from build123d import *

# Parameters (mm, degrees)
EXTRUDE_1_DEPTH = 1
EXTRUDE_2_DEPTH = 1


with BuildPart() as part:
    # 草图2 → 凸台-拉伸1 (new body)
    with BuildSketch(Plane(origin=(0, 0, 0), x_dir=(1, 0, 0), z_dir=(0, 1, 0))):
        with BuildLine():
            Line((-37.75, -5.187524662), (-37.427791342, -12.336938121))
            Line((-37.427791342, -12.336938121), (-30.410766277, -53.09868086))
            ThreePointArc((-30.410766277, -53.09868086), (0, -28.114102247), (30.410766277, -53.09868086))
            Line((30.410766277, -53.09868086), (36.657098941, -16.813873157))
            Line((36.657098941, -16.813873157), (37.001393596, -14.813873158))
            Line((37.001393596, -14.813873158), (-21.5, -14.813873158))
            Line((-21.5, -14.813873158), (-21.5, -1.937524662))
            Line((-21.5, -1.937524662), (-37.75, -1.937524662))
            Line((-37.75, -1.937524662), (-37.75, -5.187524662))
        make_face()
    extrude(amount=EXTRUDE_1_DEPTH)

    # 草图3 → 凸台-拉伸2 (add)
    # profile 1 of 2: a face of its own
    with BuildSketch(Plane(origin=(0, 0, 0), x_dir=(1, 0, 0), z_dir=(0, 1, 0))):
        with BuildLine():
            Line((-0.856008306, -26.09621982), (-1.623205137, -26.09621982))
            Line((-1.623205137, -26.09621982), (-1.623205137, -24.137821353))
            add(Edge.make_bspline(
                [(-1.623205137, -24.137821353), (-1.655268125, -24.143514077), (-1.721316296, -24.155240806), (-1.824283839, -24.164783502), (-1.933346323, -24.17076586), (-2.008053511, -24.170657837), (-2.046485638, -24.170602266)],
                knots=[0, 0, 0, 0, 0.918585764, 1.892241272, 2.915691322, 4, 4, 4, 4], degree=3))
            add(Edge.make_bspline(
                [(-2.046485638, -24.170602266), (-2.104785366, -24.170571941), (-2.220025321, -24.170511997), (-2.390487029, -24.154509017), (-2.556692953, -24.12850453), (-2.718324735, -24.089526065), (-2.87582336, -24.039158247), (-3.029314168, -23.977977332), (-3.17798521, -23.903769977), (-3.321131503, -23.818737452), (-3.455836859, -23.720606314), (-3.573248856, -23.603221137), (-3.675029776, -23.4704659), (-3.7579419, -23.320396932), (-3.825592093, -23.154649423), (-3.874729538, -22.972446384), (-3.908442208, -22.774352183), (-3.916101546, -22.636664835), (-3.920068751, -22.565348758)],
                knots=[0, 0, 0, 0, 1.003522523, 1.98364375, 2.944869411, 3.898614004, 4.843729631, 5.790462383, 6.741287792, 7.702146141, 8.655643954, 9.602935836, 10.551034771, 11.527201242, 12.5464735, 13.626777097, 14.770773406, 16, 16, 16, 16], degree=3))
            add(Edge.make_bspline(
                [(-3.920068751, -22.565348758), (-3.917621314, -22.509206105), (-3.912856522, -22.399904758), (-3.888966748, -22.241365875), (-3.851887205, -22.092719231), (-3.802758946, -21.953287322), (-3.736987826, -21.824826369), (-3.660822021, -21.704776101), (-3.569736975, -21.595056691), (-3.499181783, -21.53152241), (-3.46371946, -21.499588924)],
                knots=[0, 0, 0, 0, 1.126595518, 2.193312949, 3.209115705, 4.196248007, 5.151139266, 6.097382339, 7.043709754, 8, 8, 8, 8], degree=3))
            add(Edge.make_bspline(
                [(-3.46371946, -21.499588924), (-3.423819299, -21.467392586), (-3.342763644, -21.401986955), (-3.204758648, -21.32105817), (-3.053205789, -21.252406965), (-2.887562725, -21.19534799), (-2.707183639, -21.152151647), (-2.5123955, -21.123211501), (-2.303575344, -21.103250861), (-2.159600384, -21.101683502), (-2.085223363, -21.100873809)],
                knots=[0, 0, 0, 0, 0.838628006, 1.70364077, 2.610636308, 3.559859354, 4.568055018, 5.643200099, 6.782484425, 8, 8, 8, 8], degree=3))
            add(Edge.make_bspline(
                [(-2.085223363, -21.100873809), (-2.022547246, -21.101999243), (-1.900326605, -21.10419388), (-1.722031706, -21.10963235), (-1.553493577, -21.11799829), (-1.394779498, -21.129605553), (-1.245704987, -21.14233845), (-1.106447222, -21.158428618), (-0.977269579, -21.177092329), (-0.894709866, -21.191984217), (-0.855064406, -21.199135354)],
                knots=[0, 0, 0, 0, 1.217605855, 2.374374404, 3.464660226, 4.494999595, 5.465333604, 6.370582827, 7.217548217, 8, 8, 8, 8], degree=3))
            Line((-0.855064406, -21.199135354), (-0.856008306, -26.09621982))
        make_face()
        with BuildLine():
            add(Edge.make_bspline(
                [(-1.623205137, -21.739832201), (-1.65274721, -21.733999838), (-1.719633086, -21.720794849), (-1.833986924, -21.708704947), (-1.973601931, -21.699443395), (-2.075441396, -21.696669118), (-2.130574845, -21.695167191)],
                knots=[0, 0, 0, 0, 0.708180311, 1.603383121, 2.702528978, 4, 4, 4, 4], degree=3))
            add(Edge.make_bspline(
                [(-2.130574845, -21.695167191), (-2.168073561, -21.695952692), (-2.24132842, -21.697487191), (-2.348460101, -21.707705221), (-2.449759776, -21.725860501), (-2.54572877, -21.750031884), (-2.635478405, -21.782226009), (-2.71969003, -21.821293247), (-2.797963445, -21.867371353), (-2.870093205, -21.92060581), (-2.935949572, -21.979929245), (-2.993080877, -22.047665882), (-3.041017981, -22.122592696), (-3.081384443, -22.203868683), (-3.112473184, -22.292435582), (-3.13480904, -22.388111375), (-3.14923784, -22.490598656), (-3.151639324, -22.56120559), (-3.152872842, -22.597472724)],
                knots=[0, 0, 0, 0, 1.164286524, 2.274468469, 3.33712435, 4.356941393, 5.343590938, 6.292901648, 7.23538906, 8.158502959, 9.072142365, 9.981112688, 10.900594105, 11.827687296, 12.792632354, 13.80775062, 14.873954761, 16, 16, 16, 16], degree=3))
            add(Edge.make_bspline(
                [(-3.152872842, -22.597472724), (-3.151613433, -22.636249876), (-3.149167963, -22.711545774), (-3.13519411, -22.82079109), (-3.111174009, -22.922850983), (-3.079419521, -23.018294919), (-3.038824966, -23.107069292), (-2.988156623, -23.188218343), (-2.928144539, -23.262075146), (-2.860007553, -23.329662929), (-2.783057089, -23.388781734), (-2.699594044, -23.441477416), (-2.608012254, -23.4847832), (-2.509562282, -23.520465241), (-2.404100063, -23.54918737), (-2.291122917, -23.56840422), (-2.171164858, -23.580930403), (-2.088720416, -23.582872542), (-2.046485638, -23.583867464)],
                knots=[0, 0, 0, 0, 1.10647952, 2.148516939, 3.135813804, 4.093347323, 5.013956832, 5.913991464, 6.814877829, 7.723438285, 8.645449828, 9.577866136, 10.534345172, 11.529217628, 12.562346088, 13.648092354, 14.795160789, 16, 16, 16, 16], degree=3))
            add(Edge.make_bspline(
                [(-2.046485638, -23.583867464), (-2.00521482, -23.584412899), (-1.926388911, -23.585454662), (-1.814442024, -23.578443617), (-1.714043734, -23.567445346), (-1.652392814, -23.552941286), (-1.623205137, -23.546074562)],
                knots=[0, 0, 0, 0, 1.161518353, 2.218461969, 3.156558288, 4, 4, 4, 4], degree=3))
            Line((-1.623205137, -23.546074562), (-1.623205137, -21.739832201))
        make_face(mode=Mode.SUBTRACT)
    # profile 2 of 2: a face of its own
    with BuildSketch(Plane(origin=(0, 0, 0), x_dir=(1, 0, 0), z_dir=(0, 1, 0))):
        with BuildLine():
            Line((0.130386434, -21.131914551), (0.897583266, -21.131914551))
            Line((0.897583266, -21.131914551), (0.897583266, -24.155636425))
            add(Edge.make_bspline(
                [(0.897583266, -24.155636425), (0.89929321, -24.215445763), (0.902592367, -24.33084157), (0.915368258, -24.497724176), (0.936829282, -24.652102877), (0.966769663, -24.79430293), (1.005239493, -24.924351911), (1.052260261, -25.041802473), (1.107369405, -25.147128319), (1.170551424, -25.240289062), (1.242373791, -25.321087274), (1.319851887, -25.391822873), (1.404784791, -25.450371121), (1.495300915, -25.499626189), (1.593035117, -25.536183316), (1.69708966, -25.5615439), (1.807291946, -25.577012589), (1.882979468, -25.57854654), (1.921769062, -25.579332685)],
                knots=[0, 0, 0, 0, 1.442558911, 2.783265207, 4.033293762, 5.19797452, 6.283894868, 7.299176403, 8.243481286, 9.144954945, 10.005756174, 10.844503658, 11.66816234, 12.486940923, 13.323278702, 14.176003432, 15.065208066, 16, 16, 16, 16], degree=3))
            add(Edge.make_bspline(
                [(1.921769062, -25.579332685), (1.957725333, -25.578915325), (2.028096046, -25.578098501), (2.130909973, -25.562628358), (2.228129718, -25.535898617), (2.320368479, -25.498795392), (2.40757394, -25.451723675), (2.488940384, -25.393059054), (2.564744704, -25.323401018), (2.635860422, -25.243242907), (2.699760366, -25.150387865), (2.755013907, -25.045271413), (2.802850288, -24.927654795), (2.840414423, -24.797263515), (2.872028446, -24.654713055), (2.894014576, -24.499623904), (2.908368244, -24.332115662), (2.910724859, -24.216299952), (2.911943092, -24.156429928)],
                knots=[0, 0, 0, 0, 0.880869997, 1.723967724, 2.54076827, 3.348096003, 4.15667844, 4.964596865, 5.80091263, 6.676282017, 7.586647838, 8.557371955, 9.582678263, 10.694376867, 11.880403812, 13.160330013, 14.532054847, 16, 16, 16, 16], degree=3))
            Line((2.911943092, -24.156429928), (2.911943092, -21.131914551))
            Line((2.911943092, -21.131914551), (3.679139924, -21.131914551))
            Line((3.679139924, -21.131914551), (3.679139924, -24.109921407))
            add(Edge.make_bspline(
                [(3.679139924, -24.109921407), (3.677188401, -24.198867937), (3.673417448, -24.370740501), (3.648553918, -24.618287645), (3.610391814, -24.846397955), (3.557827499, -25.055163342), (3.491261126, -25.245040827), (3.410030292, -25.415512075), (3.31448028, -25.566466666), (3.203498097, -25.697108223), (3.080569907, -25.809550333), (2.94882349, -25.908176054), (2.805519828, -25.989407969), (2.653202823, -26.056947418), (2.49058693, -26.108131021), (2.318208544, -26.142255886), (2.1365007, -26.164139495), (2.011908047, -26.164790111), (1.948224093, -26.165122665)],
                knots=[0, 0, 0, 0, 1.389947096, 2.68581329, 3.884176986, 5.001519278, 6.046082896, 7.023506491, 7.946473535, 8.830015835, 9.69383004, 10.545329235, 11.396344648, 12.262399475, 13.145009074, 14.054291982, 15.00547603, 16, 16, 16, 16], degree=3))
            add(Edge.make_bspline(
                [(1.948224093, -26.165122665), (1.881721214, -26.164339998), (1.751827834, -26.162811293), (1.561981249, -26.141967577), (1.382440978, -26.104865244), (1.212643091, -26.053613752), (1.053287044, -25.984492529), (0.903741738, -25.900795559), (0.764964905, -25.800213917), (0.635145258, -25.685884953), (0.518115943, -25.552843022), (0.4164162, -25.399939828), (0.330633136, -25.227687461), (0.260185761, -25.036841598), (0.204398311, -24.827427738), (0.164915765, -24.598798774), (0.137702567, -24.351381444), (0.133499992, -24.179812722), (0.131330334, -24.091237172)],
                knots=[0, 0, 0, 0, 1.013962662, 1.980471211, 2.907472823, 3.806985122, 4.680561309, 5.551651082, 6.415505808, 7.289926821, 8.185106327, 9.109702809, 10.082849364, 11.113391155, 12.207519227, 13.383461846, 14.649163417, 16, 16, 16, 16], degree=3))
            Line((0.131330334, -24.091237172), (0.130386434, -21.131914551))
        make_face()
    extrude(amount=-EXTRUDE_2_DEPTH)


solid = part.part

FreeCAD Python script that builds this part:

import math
import FreeCAD as App
import Part
import Sketcher

V = App.Vector

doc = App.newDocument("Part")
body = doc.addObject("PartDesign::Body", "Body")

# Sketch on XZ plane
sketch1 = doc.addObject("Sketcher::SketchObject", "Sketch")
body.addObject(sketch1)
sketch1.AttachmentSupport = (doc.XZ_Plane, [""])
sketch1.MapMode = "FlatFace"
sketch1.addGeometry([
    Part.LineSegment(V(-37.75, 5.187525, 0), V(-37.427791, 12.336938, 0)),  # 0
    Part.LineSegment(V(-37.427791, 12.336938, 0), V(-30.410766, 53.098681, 0)),  # 1
    Part.ArcOfCircle(Part.Circle(V(0, 59.114102, 0), V(0, 0, 1), 31), math.radians(-168.81101), math.radians(-11.18899)),  # 2
    Part.LineSegment(V(30.410766, 53.098681, 0), V(36.657099, 16.813873, 0)),  # 3
    Part.LineSegment(V(36.657099, 16.813873, 0), V(37.001394, 14.813873, 0)),  # 4
    Part.LineSegment(V(37.001394, 14.813873, 0), V(-21.5, 14.813873, 0)),  # 5
    Part.LineSegment(V(-21.5, 14.813873, 0), V(-21.5, 1.937525, 0)),  # 6
    Part.LineSegment(V(-21.5, 1.937525, 0), V(-37.75, 1.937525, 0)),  # 7
    Part.LineSegment(V(-37.75, 1.937525, 0), V(-37.75, 5.187525, 0)),  # 8
], False)
sketch1.addConstraint([
    Sketcher.Constraint("Coincident", 0, 2, 1, 1),
    Sketcher.Constraint("Coincident", 1, 2, 2, 1),
    Sketcher.Constraint("Coincident", 2, 2, 3, 1),
    Sketcher.Constraint("Coincident", 3, 2, 4, 1),
    Sketcher.Constraint("Coincident", 4, 2, 5, 1),
    Sketcher.Constraint("Coincident", 5, 2, 6, 1),
    Sketcher.Constraint("Coincident", 6, 2, 7, 1),
    Sketcher.Constraint("Coincident", 7, 2, 8, 1),
    Sketcher.Constraint("Coincident", 8, 2, 0, 1),
    Sketcher.Constraint("Horizontal", 5),
    Sketcher.Constraint("Vertical", 6),
    Sketcher.Constraint("Horizontal", 7),
    Sketcher.Constraint("Vertical", 8),
    Sketcher.Constraint("PointOnObject", 2, 3, -2),
    Sketcher.Constraint("Radius", 2, 31.0),
    Sketcher.Constraint("DistanceY", 4, 2, 3, 2, 2.0),
    Sketcher.Constraint("DistanceX", 7, 2, 7, 1, 16.25),
    Sketcher.Constraint("DistanceY", 8, 1, 8, 2, 3.25),
    Sketcher.Constraint("DistanceX", 5, 2, -1, 1, 21.5),
    Sketcher.Constraint("DistanceY", 6, 2, 6, 1, 12.876348),
    Sketcher.Constraint("DistanceX", -1, 1, 3, 2, 36.657099),
    Sketcher.Constraint("Distance", 0, 7.15667),
    Sketcher.Constraint("Distance", 4, 2.029418),
    Sketcher.Constraint("DistanceX", 0, 2, -1, 1, 37.427791),
    Sketcher.Constraint("DistanceY", -1, 1, 0, 2, 12.336938),
    Sketcher.Constraint("DistanceY", -1, 1, 1, 2, 53.098681),
    Sketcher.Constraint("DistanceY", -1, 1, 2, 2, 53.098681),
    Sketcher.Constraint("DistanceY", 1, 2, 2, 3, 6.015421),
])
pad1 = doc.addObject("PartDesign::Pad", "Pad")
body.addObject(pad1)
pad1.Profile = sketch1
pad1.Length = 1
pad1.Reversed = True

# Sketch on XZ plane
sketch2 = doc.addObject("Sketcher::SketchObject", "Sketch001")
body.addObject(sketch2)
sketch2.AttachmentSupport = (doc.XZ_Plane, [""])
sketch2.MapMode = "FlatFace"
sketch2.addGeometry([
    Part.LineSegment(V(-1.623205, 26.09622, 0), V(-0.856008, 26.09622, 0)),  # 0
    Part.LineSegment(V(-0.856008, 26.09622, 0), V(-0.855064, 21.199135, 0)),  # 1
    Part.BSplineCurve([V(-2.085223, 21.100874, 0), V(-2.022547, 21.101999, 0), V(-1.900327, 21.104194, 0), V(-1.722032, 21.109632, 0), V(-1.553494, 21.117998, 0), V(-1.394779, 21.129606, 0), V(-1.245705, 21.142338, 0), V(-1.106447, 21.158429, 0), V(-0.97727, 21.177092, 0), V(-0.89471, 21.191984, 0), V(-0.855064, 21.199135, 0)], [4, 1, 1, 1, 1, 1, 1, 1, 4], [0, 1.217605855, 2.374374404, 3.464660226, 4.494999595, 5.465333604, 6.370582827, 7.217548217, 8], False, 3, [1, 1, 1, 1, 1, 1, 1, 1, 1, 1, 1], False),  # 2
    Part.BSplineCurve([V(-3.463719, 21.499589, 0), V(-3.423819, 21.467393, 0), V(-3.342764, 21.401987, 0), V(-3.204759, 21.321058, 0), V(-3.053206, 21.252407, 0), V(-2.887563, 21.195348, 0), V(-2.707184, 21.152152, 0), V(-2.512395, 21.123212, 0), V(-2.303575, 21.103251, 0), V(-2.1596, 21.101684, 0), V(-2.085223, 21.100874, 0)], [4, 1, 1, 1, 1, 1, 1, 1, 4], [0, 0.838628006, 1.70364077, 2.610636308, 3.559859354, 4.568055018, 5.643200099, 6.782484425, 8], False, 3, [1, 1, 1, 1, 1, 1, 1, 1, 1, 1, 1], False),  # 3
    Part.BSplineCurve([V(-3.920069, 22.565349, 0), V(-3.917621, 22.509206, 0), V(-3.912857, 22.399905, 0), V(-3.888967, 22.241366, 0), V(-3.851887, 22.092719, 0), V(-3.802759, 21.953287, 0), V(-3.736988, 21.824826, 0), V(-3.660822, 21.704776, 0), V(-3.569737, 21.595057, 0), V(-3.499182, 21.531522, 0), V(-3.463719, 21.499589, 0)], [4, 1, 1, 1, 1, 1, 1, 1, 4], [0, 1.126595518, 2.193312949, 3.209115705, 4.196248007, 5.151139266, 6.097382339, 7.043709754, 8], False, 3, [1, 1, 1, 1, 1, 1, 1, 1, 1, 1, 1], False),  # 4
    Part.BSplineCurve([V(-2.046486, 24.170602, 0), V(-2.104785, 24.170572, 0), V(-2.220025, 24.170512, 0), V(-2.390487, 24.154509, 0), V(-2.556693, 24.128505, 0), V(-2.718325, 24.089526, 0), V(-2.875823, 24.039158, 0), V(-3.029314, 23.977977, 0), V(-3.177985, 23.90377, 0), V(-3.321132, 23.818737, 0), V(-3.455837, 23.720606, 0), V(-3.573249, 23.603221, 0), V(-3.67503, 23.470466, 0), V(-3.757942, 23.320397, 0), V(-3.825592, 23.154649, 0), V(-3.87473, 22.972446, 0), V(-3.908442, 22.774352, 0), V(-3.916102, 22.636665, 0), V(-3.920069, 22.565349, 0)], [4, 1, 1, 1, 1, 1, 1, 1, 1, 1, 1, 1, 1, 1, 1, 1, 4], [0, 1.003522523, 1.98364375, 2.944869411, 3.898614004, 4.843729631, 5.790462383, 6.741287792, 7.702146141, 8.655643954, 9.602935836, 10.551034771, 11.527201242, 12.5464735, 13.626777097, 14.770773406, 16], False, 3, [1, 1, 1, 1, 1, 1, 1, 1, 1, 1, 1, 1, 1, 1, 1, 1, 1, 1, 1], False),  # 5
    Part.BSplineCurve([V(-1.623205, 24.137821, 0), V(-1.655268, 24.143514, 0), V(-1.721316, 24.155241, 0), V(-1.824284, 24.164784, 0), V(-1.933346, 24.170766, 0), V(-2.008054, 24.170658, 0), V(-2.046486, 24.170602, 0)], [4, 1, 1, 1, 4], [0, 0.918585764, 1.892241272, 2.915691322, 4], False, 3, [1, 1, 1, 1, 1, 1, 1], False),  # 6
    Part.LineSegment(V(-1.623205, 24.137821, 0), V(-1.623205, 26.09622, 0)),  # 7
    Part.LineSegment(V(-1.623205, 21.739832, 0), V(-1.623205, 23.546075, 0)),  # 8
    Part.BSplineCurve([V(-2.046486, 23.583867, 0), V(-2.005215, 23.584413, 0), V(-1.926389, 23.585455, 0), V(-1.814442, 23.578444, 0), V(-1.714044, 23.567445, 0), V(-1.652393, 23.552941, 0), V(-1.623205, 23.546075, 0)], [4, 1, 1, 1, 4], [0, 1.161518353, 2.218461969, 3.156558288, 4], False, 3, [1, 1, 1, 1, 1, 1, 1], False),  # 9
    Part.BSplineCurve([V(-3.152873, 22.597473, 0), V(-3.151613, 22.63625, 0), V(-3.149168, 22.711546, 0), V(-3.135194, 22.820791, 0), V(-3.111174, 22.922851, 0), V(-3.07942, 23.018295, 0), V(-3.038825, 23.107069, 0), V(-2.988157, 23.188218, 0), V(-2.928145, 23.262075, 0), V(-2.860008, 23.329663, 0), V(-2.783057, 23.388782, 0), V(-2.699594, 23.441477, 0), V(-2.608012, 23.484783, 0), V(-2.509562, 23.520465, 0), V(-2.4041, 23.549187, 0), V(-2.291123, 23.568404, 0), V(-2.171165, 23.58093, 0), V(-2.08872, 23.582873, 0), V(-2.046486, 23.583867, 0)], [4, 1, 1, 1, 1, 1, 1, 1, 1, 1, 1, 1, 1, 1, 1, 1, 4], [0, 1.10647952, 2.148516939, 3.135813804, 4.093347323, 5.013956832, 5.913991464, 6.814877829, 7.723438285, 8.645449828, 9.577866136, 10.534345172, 11.529217628, 12.562346088, 13.648092354, 14.795160789, 16], False, 3, [1, 1, 1, 1, 1, 1, 1, 1, 1, 1, 1, 1, 1, 1, 1, 1, 1, 1, 1], False),  # 10
    Part.BSplineCurve([V(-2.130575, 21.695167, 0), V(-2.168074, 21.695953, 0), V(-2.241328, 21.697487, 0), V(-2.34846, 21.707705, 0), V(-2.44976, 21.725861, 0), V(-2.545729, 21.750032, 0), V(-2.635478, 21.782226, 0), V(-2.71969, 21.821293, 0), V(-2.797963, 21.867371, 0), V(-2.870093, 21.920606, 0), V(-2.93595, 21.979929, 0), V(-2.993081, 22.047666, 0), V(-3.041018, 22.122593, 0), V(-3.081384, 22.203869, 0), V(-3.112473, 22.292436, 0), V(-3.134809, 22.388111, 0), V(-3.149238, 22.490599, 0), V(-3.151639, 22.561206, 0), V(-3.152873, 22.597473, 0)], [4, 1, 1, 1, 1, 1, 1, 1, 1, 1, 1, 1, 1, 1, 1, 1, 4], [0, 1.164286524, 2.274468469, 3.33712435, 4.356941393, 5.343590938, 6.292901648, 7.23538906, 8.158502959, 9.072142365, 9.981112688, 10.900594105, 11.827687296, 12.792632354, 13.80775062, 14.873954761, 16], False, 3, [1, 1, 1, 1, 1, 1, 1, 1, 1, 1, 1, 1, 1, 1, 1, 1, 1, 1, 1], False),  # 11
    Part.BSplineCurve([V(-1.623205, 21.739832, 0), V(-1.652747, 21.734, 0), V(-1.719633, 21.720795, 0), V(-1.833987, 21.708705, 0), V(-1.973602, 21.699443, 0), V(-2.075441, 21.696669, 0), V(-2.130575, 21.695167, 0)], [4, 1, 1, 1, 4], [0, 0.708180311, 1.603383121, 2.702528978, 4], False, 3, [1, 1, 1, 1, 1, 1, 1], False),  # 12
    Part.LineSegment(V(0.897583, 21.131915, 0), V(0.130386, 21.131915, 0)),  # 13
    Part.LineSegment(V(0.130386, 21.131915, 0), V(0.13133, 24.091237, 0)),  # 14
    Part.BSplineCurve([V(1.948224, 26.165123, 0), V(1.881721, 26.16434, 0), V(1.751828, 26.162811, 0), V(1.561981, 26.141968, 0), V(1.382441, 26.104865, 0), V(1.212643, 26.053614, 0), V(1.053287, 25.984493, 0), V(0.903742, 25.900796, 0), V(0.764965, 25.800214, 0), V(0.635145, 25.685885, 0), V(0.518116, 25.552843, 0), V(0.416416, 25.39994, 0), V(0.330633, 25.227687, 0), V(0.260186, 25.036842, 0), V(0.204398, 24.827428, 0), V(0.164916, 24.598799, 0), V(0.137703, 24.351381, 0), V(0.1335, 24.179813, 0), V(0.13133, 24.091237, 0)], [4, 1, 1, 1, 1, 1, 1, 1, 1, 1, 1, 1, 1, 1, 1, 1, 4], [0, 1.013962662, 1.980471211, 2.907472823, 3.806985122, 4.680561309, 5.551651082, 6.415505808, 7.289926821, 8.185106327, 9.109702809, 10.082849364, 11.113391155, 12.207519227, 13.383461846, 14.649163417, 16], False, 3, [1, 1, 1, 1, 1, 1, 1, 1, 1, 1, 1, 1, 1, 1, 1, 1, 1, 1, 1], False),  # 15
    Part.BSplineCurve([V(3.67914, 24.109921, 0), V(3.677188, 24.198868, 0), V(3.673417, 24.370741, 0), V(3.648554, 24.618288, 0), V(3.610392, 24.846398, 0), V(3.557827, 25.055163, 0), V(3.491261, 25.245041, 0), V(3.41003, 25.415512, 0), V(3.31448, 25.566467, 0), V(3.203498, 25.697108, 0), V(3.08057, 25.80955, 0), V(2.948823, 25.908176, 0), V(2.80552, 25.989408, 0), V(2.653203, 26.056947, 0), V(2.490587, 26.108131, 0), V(2.318209, 26.142256, 0), V(2.136501, 26.164139, 0), V(2.011908, 26.16479, 0), V(1.948224, 26.165123, 0)], [4, 1, 1, 1, 1, 1, 1, 1, 1, 1, 1, 1, 1, 1, 1, 1, 4], [0, 1.389947096, 2.68581329, 3.884176986, 5.001519278, 6.046082896, 7.023506491, 7.946473535, 8.830015835, 9.69383004, 10.545329235, 11.396344648, 12.262399475, 13.145009074, 14.054291982, 15.00547603, 16], False, 3, [1, 1, 1, 1, 1, 1, 1, 1, 1, 1, 1, 1, 1, 1, 1, 1, 1, 1, 1], False),  # 16
    Part.LineSegment(V(3.67914, 24.109921, 0), V(3.67914, 21.131915, 0)),  # 17
    Part.LineSegment(V(3.67914, 21.131915, 0), V(2.911943, 21.131915, 0)),  # 18
    Part.LineSegment(V(2.911943, 21.131915, 0), V(2.911943, 24.15643, 0)),  # 19
    Part.BSplineCurve([V(1.921769, 25.579333, 0), V(1.957725, 25.578915, 0), V(2.028096, 25.578099, 0), V(2.13091, 25.562628, 0), V(2.22813, 25.535899, 0), V(2.320368, 25.498795, 0), V(2.407574, 25.451724, 0), V(2.48894, 25.393059, 0), V(2.564745, 25.323401, 0), V(2.63586, 25.243243, 0), V(2.69976, 25.150388, 0), V(2.755014, 25.045271, 0), V(2.80285, 24.927655, 0), V(2.840414, 24.797264, 0), V(2.872028, 24.654713, 0), V(2.894015, 24.499624, 0), V(2.908368, 24.332116, 0), V(2.910725, 24.2163, 0), V(2.911943, 24.15643, 0)], [4, 1, 1, 1, 1, 1, 1, 1, 1, 1, 1, 1, 1, 1, 1, 1, 4], [0, 0.880869997, 1.723967724, 2.54076827, 3.348096003, 4.15667844, 4.964596865, 5.80091263, 6.676282017, 7.586647838, 8.557371955, 9.582678263, 10.694376867, 11.880403812, 13.160330013, 14.532054847, 16], False, 3, [1, 1, 1, 1, 1, 1, 1, 1, 1, 1, 1, 1, 1, 1, 1, 1, 1, 1, 1], False),  # 20
    Part.BSplineCurve([V(0.897583, 24.155636, 0), V(0.899293, 24.215446, 0), V(0.902592, 24.330842, 0), V(0.915368, 24.497724, 0), V(0.936829, 24.652103, 0), V(0.96677, 24.794303, 0), V(1.005239, 24.924352, 0), V(1.05226, 25.041802, 0), V(1.107369, 25.147128, 0), V(1.170551, 25.240289, 0), V(1.242374, 25.321087, 0), V(1.319852, 25.391823, 0), V(1.404785, 25.450371, 0), V(1.495301, 25.499626, 0), V(1.593035, 25.536183, 0), V(1.69709, 25.561544, 0), V(1.807292, 25.577013, 0), V(1.882979, 25.578547, 0), V(1.921769, 25.579333, 0)], [4, 1, 1, 1, 1, 1, 1, 1, 1, 1, 1, 1, 1, 1, 1, 1, 4], [0, 1.442558911, 2.783265207, 4.033293762, 5.19797452, 6.283894868, 7.299176403, 8.243481286, 9.144954945, 10.005756174, 10.844503658, 11.66816234, 12.486940923, 13.323278702, 14.176003432, 15.065208066, 16], False, 3, [1, 1, 1, 1, 1, 1, 1, 1, 1, 1, 1, 1, 1, 1, 1, 1, 1, 1, 1], False),  # 21
    Part.LineSegment(V(0.897583, 24.155636, 0), V(0.897583, 21.131915, 0)),  # 22
], False)
sketch2.addConstraint([
    Sketcher.Constraint("Block", 2),
    Sketcher.Constraint("Block", 3),
    Sketcher.Constraint("Block", 4),
    Sketcher.Constraint("Block", 5),
    Sketcher.Constraint("Block", 6),
    Sketcher.Constraint("Block", 9),
    Sketcher.Constraint("Block", 10),
    Sketcher.Constraint("Block", 11),
    Sketcher.Constraint("Block", 12),
    Sketcher.Constraint("Block", 15),
    Sketcher.Constraint("Block", 16),
    Sketcher.Constraint("Block", 20),
    Sketcher.Constraint("Block", 21),
    Sketcher.Constraint("Coincident", 0, 2, 1, 1),
    Sketcher.Constraint("Coincident", 1, 2, 2, 2),
    Sketcher.Constraint("Coincident", 6, 1, 7, 1),
    Sketcher.Constraint("Coincident", 7, 2, 0, 1),
    Sketcher.Constraint("Coincident", 8, 2, 9, 2),
    Sketcher.Constraint("Coincident", 12, 1, 8, 1),
    Sketcher.Constraint("Coincident", 13, 2, 14, 1),
    Sketcher.Constraint("Coincident", 14, 2, 15, 2),
    Sketcher.Constraint("Coincident", 16, 1, 17, 1),
    Sketcher.Constraint("Coincident", 17, 2, 18, 1),
    Sketcher.Constraint("Coincident", 18, 2, 19, 1),
    Sketcher.Constraint("Coincident", 19, 2, 20, 2),
    Sketcher.Constraint("Coincident", 21, 1, 22, 1),
    Sketcher.Constraint("Coincident", 22, 2, 13, 1),
    Sketcher.Constraint("Horizontal", 0),
    Sketcher.Constraint("Vertical", 7),
    Sketcher.Constraint("Horizontal", 13),
    Sketcher.Constraint("Vertical", 17),
    Sketcher.Constraint("Horizontal", 18),
    Sketcher.Constraint("Vertical", 19),
    Sketcher.Constraint("Vertical", 22),
    Sketcher.Constraint("DistanceY", 7, 1, 7, 2, 1.958398),
    Sketcher.Constraint("DistanceY", 22, 2, 22, 1, 3.023722),
    Sketcher.Constraint("DistanceX", 0, 1, 0, 2, 0.767197),
    Sketcher.Constraint("DistanceX", 13, 2, 13, 1, 0.767197),
    Sketcher.Constraint("DistanceY", 17, 2, 17, 1, 2.978007),
])
pad2 = doc.addObject("PartDesign::Pad", "Pad001")
body.addObject(pad2)
pad2.Profile = sketch2
pad2.Length = 1

doc.recompute()
